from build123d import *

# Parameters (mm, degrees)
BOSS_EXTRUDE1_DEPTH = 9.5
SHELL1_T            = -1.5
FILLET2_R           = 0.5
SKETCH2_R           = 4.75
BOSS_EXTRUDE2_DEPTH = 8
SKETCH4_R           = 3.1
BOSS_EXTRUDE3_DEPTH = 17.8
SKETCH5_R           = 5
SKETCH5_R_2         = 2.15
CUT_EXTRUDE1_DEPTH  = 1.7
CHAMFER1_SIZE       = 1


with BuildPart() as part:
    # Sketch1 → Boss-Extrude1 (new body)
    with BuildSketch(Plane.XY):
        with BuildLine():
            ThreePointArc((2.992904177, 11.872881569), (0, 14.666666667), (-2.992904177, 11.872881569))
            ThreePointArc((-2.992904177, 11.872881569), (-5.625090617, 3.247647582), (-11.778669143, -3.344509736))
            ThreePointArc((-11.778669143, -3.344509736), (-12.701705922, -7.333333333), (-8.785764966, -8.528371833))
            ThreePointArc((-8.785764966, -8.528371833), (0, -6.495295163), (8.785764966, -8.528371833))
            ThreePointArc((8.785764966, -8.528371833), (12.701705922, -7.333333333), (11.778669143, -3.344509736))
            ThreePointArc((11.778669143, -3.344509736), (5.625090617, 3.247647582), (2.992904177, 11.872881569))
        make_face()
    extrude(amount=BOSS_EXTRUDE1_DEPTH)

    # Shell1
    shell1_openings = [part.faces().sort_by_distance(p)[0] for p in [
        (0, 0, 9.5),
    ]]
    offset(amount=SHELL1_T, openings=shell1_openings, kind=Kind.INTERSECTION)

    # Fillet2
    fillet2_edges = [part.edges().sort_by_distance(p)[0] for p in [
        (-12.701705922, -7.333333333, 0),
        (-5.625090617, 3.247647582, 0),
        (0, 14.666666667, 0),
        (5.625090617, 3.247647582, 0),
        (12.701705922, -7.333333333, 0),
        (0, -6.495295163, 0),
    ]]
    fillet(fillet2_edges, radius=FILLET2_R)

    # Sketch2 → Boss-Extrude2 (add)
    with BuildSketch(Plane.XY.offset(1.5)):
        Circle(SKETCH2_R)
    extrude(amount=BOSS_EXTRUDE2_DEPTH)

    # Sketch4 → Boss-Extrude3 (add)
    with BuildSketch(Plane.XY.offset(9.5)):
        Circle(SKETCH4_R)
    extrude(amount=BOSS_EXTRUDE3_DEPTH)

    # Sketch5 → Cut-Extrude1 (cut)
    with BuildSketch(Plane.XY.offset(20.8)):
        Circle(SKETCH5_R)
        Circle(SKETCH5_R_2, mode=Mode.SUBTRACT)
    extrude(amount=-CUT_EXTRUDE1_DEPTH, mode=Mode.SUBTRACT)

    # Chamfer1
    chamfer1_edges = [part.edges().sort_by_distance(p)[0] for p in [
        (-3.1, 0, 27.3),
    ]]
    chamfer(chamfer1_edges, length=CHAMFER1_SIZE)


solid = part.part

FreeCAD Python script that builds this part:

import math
import FreeCAD as App
import Part
import Sketcher
Q = App.Units.Quantity


def edges_at(feature, points):
    """Names of the edges that pass closest to the given points."""
    edges = feature.Shape.Edges
    near = lambda p: min(range(len(edges)), key=lambda i: edges[i].distToShape(Part.Vertex(*p))[0])
    return sorted({f"Edge{near(p) + 1}" for p in points})


def faces_at(feature, points):
    """Names of the faces that lie closest to the given points."""
    faces = feature.Shape.Faces
    near = lambda p: min(range(len(faces)), key=lambda i: faces[i].distToShape(Part.Vertex(*p))[0])
    return sorted({f"Face{near(p) + 1}" for p in points})

doc = App.newDocument("Part")
body = doc.addObject("PartDesign::Body", "Body")

sketch1 = body.newObject("Sketcher::SketchObject", "Sketch")
sketch1.AttachmentSupport = (doc.getObject("XY_Plane"), [""])
sketch1.MapMode = "FlatFace"
sketch1.addGeometry(Part.ArcOfCircle(Part.Circle(App.Vector(0, 11.7, 0), App.Vector(0, 0, 1), 3), math.radians(4), math.radians(176)), False)
sketch1.addGeometry(Part.ArcOfCircle(Part.Circle(App.Vector(-22.9, 13.2, 0), App.Vector(0, 0, 1), 20), math.radians(-56), math.radians(-4)), False)
sketch1.addGeometry(Part.ArcOfCircle(Part.Circle(App.Vector(-10.1, -5.8, 0), App.Vector(0, 0, 1), 3), math.radians(124), math.radians(296)), False)
sketch1.addGeometry(Part.ArcOfCircle(Part.Circle(App.Vector(0, -26.5, 0), App.Vector(0, 0, 1), 20), math.radians(64), math.radians(116)), False)
sketch1.addGeometry(Part.ArcOfCircle(Part.Circle(App.Vector(10.1, -5.8, 0), App.Vector(0, 0, 1), 3), math.radians(-116), math.radians(56)), False)
sketch1.addGeometry(Part.ArcOfCircle(Part.Circle(App.Vector(22.9, 13.2, 0), App.Vector(0, 0, 1), 20), math.radians(-176), math.radians(-124)), False)
sketch1.addConstraint(Sketcher.Constraint("Tangent", 0, 2, 1, 2))
sketch1.addConstraint(Sketcher.Constraint("Tangent", 1, 1, 2, 1))
sketch1.addConstraint(Sketcher.Constraint("Tangent", 2, 2, 3, 2))
sketch1.addConstraint(Sketcher.Constraint("Tangent", 3, 1, 4, 1))
sketch1.addConstraint(Sketcher.Constraint("Tangent", 4, 2, 5, 2))
sketch1.addConstraint(Sketcher.Constraint("Tangent", 5, 1, 0, 1))
sketch1.addConstraint(Sketcher.Constraint("Equal", 0, 2))
sketch1.addConstraint(Sketcher.Constraint("Equal", 1, 3))
sketch1.addConstraint(Sketcher.Constraint("Equal", 2, 4))
sketch1.addConstraint(Sketcher.Constraint("Equal", 3, 5))
sketch1.addConstraint(Sketcher.Constraint("Symmetric", 2, 3, 4, 3, -2))
sketch1.addConstraint(Sketcher.Constraint("PointOnObject", 0, 3, -2))
sketch1.addConstraint(Sketcher.Constraint("Radius", 0, Q("3 mm")))
sketch1.addConstraint(Sketcher.Constraint("Radius", 1, Q("20 mm")))
sketch1.addConstraint(Sketcher.Constraint("DistanceY", 2, 3, 0, 3, Q("17.5 mm")))
sketch1.addConstraint(Sketcher.Constraint("DistanceX", 1, 3, -1, 1, Q("22.945599 mm")))
sketch1.addConstraint(Sketcher.Constraint("DistanceY", -1, 1, 0, 2, Q("11.872882 mm")))
pad1 = body.newObject("PartDesign::Pad", "Pad")
pad1.Profile = sketch1
pad1.Length = 9.5
doc.recompute()

thickness = body.newObject("PartDesign::Thickness", "Thickness")
thickness.Base = (pad1, faces_at(pad1, [(0, 2.917, 9.5)]))
thickness.Value = 1.5
thickness.Reversed = True
thickness.Join = "Intersection"
doc.recompute()

fillet = body.newObject("PartDesign::Fillet", "Fillet")
fillet.Base = (thickness, edges_at(thickness, [
    (-12.702, -7.333, 0),
    (-5.625, 3.248, 0),
    (0, 14.667, 0),
    (5.625, 3.248, 0),
    (12.702, -7.333, 0),
    (0, -6.495, 0),
]))
fillet.Radius = 0.5

sketch2 = body.newObject("Sketcher::SketchObject", "Sketch001")
sketch2.AttachmentSupport = (doc.getObject("XY_Plane"), [""])
sketch2.MapMode = "FlatFace"
sketch2.AttachmentOffset = App.Placement(App.Vector(0, 0, 1.5), App.Rotation())
sketch2.addGeometry(Part.Circle(App.Vector(0, 0, 0), App.Vector(0, 0, 1), 4.8), False)
sketch2.addConstraint(Sketcher.Constraint("Coincident", 0, 3, -1, 1))
sketch2.addConstraint(Sketcher.Constraint("Diameter", 0, Q("9.5 mm")))
pad2 = body.newObject("PartDesign::Pad", "Pad001")
pad2.Profile = sketch2
pad2.Length = 8

sketch3 = body.newObject("Sketcher::SketchObject", "Sketch002")
sketch3.AttachmentSupport = (doc.getObject("XY_Plane"), [""])
sketch3.MapMode = "FlatFace"
sketch3.AttachmentOffset = App.Placement(App.Vector(0, 0, 9.5), App.Rotation())
sketch3.addGeometry(Part.Circle(App.Vector(0, 0, 0), App.Vector(0, 0, 1), 3.1), False)
sketch3.addConstraint(Sketcher.Constraint("Coincident", 0, 3, -1, 1))
sketch3.addConstraint(Sketcher.Constraint("Diameter", 0, Q("6.2 mm")))
pad3 = body.newObject("PartDesign::Pad", "Pad002")
pad3.Profile = sketch3
pad3.Length = 17.8

sketch4 = body.newObject("Sketcher::SketchObject", "Sketch003")
sketch4.AttachmentSupport = (doc.getObject("XY_Plane"), [""])
sketch4.MapMode = "FlatFace"
sketch4.AttachmentOffset = App.Placement(App.Vector(0, 0, 20.8), App.Rotation())
sketch4.addGeometry(Part.Circle(App.Vector(0, 0, 0), App.Vector(0, 0, 1), 5), False)
sketch4.addGeometry(Part.Circle(App.Vector(0, 0, 0), App.Vector(0, 0, 1), 2.1), False)
sketch4.addConstraint(Sketcher.Constraint("Coincident", 0, 3, -1, 1))
sketch4.addConstraint(Sketcher.Constraint("Coincident", 1, 3, -1, 1))
sketch4.addConstraint(Sketcher.Constraint("Diameter", 0, Q("10 mm")))
sketch4.addConstraint(Sketcher.Constraint("Diameter", 1, Q("4.3 mm")))
pocket1 = body.newObject("PartDesign::Pocket", "Pocket")
pocket1.Profile = sketch4
pocket1.Length = 1.7
doc.recompute()

chamfer = body.newObject("PartDesign::Chamfer", "Chamfer")
chamfer.Base = (pocket1, edges_at(pocket1, [(-3.1, 0, 27.3)]))
chamfer.Size = 1

doc.recompute()
